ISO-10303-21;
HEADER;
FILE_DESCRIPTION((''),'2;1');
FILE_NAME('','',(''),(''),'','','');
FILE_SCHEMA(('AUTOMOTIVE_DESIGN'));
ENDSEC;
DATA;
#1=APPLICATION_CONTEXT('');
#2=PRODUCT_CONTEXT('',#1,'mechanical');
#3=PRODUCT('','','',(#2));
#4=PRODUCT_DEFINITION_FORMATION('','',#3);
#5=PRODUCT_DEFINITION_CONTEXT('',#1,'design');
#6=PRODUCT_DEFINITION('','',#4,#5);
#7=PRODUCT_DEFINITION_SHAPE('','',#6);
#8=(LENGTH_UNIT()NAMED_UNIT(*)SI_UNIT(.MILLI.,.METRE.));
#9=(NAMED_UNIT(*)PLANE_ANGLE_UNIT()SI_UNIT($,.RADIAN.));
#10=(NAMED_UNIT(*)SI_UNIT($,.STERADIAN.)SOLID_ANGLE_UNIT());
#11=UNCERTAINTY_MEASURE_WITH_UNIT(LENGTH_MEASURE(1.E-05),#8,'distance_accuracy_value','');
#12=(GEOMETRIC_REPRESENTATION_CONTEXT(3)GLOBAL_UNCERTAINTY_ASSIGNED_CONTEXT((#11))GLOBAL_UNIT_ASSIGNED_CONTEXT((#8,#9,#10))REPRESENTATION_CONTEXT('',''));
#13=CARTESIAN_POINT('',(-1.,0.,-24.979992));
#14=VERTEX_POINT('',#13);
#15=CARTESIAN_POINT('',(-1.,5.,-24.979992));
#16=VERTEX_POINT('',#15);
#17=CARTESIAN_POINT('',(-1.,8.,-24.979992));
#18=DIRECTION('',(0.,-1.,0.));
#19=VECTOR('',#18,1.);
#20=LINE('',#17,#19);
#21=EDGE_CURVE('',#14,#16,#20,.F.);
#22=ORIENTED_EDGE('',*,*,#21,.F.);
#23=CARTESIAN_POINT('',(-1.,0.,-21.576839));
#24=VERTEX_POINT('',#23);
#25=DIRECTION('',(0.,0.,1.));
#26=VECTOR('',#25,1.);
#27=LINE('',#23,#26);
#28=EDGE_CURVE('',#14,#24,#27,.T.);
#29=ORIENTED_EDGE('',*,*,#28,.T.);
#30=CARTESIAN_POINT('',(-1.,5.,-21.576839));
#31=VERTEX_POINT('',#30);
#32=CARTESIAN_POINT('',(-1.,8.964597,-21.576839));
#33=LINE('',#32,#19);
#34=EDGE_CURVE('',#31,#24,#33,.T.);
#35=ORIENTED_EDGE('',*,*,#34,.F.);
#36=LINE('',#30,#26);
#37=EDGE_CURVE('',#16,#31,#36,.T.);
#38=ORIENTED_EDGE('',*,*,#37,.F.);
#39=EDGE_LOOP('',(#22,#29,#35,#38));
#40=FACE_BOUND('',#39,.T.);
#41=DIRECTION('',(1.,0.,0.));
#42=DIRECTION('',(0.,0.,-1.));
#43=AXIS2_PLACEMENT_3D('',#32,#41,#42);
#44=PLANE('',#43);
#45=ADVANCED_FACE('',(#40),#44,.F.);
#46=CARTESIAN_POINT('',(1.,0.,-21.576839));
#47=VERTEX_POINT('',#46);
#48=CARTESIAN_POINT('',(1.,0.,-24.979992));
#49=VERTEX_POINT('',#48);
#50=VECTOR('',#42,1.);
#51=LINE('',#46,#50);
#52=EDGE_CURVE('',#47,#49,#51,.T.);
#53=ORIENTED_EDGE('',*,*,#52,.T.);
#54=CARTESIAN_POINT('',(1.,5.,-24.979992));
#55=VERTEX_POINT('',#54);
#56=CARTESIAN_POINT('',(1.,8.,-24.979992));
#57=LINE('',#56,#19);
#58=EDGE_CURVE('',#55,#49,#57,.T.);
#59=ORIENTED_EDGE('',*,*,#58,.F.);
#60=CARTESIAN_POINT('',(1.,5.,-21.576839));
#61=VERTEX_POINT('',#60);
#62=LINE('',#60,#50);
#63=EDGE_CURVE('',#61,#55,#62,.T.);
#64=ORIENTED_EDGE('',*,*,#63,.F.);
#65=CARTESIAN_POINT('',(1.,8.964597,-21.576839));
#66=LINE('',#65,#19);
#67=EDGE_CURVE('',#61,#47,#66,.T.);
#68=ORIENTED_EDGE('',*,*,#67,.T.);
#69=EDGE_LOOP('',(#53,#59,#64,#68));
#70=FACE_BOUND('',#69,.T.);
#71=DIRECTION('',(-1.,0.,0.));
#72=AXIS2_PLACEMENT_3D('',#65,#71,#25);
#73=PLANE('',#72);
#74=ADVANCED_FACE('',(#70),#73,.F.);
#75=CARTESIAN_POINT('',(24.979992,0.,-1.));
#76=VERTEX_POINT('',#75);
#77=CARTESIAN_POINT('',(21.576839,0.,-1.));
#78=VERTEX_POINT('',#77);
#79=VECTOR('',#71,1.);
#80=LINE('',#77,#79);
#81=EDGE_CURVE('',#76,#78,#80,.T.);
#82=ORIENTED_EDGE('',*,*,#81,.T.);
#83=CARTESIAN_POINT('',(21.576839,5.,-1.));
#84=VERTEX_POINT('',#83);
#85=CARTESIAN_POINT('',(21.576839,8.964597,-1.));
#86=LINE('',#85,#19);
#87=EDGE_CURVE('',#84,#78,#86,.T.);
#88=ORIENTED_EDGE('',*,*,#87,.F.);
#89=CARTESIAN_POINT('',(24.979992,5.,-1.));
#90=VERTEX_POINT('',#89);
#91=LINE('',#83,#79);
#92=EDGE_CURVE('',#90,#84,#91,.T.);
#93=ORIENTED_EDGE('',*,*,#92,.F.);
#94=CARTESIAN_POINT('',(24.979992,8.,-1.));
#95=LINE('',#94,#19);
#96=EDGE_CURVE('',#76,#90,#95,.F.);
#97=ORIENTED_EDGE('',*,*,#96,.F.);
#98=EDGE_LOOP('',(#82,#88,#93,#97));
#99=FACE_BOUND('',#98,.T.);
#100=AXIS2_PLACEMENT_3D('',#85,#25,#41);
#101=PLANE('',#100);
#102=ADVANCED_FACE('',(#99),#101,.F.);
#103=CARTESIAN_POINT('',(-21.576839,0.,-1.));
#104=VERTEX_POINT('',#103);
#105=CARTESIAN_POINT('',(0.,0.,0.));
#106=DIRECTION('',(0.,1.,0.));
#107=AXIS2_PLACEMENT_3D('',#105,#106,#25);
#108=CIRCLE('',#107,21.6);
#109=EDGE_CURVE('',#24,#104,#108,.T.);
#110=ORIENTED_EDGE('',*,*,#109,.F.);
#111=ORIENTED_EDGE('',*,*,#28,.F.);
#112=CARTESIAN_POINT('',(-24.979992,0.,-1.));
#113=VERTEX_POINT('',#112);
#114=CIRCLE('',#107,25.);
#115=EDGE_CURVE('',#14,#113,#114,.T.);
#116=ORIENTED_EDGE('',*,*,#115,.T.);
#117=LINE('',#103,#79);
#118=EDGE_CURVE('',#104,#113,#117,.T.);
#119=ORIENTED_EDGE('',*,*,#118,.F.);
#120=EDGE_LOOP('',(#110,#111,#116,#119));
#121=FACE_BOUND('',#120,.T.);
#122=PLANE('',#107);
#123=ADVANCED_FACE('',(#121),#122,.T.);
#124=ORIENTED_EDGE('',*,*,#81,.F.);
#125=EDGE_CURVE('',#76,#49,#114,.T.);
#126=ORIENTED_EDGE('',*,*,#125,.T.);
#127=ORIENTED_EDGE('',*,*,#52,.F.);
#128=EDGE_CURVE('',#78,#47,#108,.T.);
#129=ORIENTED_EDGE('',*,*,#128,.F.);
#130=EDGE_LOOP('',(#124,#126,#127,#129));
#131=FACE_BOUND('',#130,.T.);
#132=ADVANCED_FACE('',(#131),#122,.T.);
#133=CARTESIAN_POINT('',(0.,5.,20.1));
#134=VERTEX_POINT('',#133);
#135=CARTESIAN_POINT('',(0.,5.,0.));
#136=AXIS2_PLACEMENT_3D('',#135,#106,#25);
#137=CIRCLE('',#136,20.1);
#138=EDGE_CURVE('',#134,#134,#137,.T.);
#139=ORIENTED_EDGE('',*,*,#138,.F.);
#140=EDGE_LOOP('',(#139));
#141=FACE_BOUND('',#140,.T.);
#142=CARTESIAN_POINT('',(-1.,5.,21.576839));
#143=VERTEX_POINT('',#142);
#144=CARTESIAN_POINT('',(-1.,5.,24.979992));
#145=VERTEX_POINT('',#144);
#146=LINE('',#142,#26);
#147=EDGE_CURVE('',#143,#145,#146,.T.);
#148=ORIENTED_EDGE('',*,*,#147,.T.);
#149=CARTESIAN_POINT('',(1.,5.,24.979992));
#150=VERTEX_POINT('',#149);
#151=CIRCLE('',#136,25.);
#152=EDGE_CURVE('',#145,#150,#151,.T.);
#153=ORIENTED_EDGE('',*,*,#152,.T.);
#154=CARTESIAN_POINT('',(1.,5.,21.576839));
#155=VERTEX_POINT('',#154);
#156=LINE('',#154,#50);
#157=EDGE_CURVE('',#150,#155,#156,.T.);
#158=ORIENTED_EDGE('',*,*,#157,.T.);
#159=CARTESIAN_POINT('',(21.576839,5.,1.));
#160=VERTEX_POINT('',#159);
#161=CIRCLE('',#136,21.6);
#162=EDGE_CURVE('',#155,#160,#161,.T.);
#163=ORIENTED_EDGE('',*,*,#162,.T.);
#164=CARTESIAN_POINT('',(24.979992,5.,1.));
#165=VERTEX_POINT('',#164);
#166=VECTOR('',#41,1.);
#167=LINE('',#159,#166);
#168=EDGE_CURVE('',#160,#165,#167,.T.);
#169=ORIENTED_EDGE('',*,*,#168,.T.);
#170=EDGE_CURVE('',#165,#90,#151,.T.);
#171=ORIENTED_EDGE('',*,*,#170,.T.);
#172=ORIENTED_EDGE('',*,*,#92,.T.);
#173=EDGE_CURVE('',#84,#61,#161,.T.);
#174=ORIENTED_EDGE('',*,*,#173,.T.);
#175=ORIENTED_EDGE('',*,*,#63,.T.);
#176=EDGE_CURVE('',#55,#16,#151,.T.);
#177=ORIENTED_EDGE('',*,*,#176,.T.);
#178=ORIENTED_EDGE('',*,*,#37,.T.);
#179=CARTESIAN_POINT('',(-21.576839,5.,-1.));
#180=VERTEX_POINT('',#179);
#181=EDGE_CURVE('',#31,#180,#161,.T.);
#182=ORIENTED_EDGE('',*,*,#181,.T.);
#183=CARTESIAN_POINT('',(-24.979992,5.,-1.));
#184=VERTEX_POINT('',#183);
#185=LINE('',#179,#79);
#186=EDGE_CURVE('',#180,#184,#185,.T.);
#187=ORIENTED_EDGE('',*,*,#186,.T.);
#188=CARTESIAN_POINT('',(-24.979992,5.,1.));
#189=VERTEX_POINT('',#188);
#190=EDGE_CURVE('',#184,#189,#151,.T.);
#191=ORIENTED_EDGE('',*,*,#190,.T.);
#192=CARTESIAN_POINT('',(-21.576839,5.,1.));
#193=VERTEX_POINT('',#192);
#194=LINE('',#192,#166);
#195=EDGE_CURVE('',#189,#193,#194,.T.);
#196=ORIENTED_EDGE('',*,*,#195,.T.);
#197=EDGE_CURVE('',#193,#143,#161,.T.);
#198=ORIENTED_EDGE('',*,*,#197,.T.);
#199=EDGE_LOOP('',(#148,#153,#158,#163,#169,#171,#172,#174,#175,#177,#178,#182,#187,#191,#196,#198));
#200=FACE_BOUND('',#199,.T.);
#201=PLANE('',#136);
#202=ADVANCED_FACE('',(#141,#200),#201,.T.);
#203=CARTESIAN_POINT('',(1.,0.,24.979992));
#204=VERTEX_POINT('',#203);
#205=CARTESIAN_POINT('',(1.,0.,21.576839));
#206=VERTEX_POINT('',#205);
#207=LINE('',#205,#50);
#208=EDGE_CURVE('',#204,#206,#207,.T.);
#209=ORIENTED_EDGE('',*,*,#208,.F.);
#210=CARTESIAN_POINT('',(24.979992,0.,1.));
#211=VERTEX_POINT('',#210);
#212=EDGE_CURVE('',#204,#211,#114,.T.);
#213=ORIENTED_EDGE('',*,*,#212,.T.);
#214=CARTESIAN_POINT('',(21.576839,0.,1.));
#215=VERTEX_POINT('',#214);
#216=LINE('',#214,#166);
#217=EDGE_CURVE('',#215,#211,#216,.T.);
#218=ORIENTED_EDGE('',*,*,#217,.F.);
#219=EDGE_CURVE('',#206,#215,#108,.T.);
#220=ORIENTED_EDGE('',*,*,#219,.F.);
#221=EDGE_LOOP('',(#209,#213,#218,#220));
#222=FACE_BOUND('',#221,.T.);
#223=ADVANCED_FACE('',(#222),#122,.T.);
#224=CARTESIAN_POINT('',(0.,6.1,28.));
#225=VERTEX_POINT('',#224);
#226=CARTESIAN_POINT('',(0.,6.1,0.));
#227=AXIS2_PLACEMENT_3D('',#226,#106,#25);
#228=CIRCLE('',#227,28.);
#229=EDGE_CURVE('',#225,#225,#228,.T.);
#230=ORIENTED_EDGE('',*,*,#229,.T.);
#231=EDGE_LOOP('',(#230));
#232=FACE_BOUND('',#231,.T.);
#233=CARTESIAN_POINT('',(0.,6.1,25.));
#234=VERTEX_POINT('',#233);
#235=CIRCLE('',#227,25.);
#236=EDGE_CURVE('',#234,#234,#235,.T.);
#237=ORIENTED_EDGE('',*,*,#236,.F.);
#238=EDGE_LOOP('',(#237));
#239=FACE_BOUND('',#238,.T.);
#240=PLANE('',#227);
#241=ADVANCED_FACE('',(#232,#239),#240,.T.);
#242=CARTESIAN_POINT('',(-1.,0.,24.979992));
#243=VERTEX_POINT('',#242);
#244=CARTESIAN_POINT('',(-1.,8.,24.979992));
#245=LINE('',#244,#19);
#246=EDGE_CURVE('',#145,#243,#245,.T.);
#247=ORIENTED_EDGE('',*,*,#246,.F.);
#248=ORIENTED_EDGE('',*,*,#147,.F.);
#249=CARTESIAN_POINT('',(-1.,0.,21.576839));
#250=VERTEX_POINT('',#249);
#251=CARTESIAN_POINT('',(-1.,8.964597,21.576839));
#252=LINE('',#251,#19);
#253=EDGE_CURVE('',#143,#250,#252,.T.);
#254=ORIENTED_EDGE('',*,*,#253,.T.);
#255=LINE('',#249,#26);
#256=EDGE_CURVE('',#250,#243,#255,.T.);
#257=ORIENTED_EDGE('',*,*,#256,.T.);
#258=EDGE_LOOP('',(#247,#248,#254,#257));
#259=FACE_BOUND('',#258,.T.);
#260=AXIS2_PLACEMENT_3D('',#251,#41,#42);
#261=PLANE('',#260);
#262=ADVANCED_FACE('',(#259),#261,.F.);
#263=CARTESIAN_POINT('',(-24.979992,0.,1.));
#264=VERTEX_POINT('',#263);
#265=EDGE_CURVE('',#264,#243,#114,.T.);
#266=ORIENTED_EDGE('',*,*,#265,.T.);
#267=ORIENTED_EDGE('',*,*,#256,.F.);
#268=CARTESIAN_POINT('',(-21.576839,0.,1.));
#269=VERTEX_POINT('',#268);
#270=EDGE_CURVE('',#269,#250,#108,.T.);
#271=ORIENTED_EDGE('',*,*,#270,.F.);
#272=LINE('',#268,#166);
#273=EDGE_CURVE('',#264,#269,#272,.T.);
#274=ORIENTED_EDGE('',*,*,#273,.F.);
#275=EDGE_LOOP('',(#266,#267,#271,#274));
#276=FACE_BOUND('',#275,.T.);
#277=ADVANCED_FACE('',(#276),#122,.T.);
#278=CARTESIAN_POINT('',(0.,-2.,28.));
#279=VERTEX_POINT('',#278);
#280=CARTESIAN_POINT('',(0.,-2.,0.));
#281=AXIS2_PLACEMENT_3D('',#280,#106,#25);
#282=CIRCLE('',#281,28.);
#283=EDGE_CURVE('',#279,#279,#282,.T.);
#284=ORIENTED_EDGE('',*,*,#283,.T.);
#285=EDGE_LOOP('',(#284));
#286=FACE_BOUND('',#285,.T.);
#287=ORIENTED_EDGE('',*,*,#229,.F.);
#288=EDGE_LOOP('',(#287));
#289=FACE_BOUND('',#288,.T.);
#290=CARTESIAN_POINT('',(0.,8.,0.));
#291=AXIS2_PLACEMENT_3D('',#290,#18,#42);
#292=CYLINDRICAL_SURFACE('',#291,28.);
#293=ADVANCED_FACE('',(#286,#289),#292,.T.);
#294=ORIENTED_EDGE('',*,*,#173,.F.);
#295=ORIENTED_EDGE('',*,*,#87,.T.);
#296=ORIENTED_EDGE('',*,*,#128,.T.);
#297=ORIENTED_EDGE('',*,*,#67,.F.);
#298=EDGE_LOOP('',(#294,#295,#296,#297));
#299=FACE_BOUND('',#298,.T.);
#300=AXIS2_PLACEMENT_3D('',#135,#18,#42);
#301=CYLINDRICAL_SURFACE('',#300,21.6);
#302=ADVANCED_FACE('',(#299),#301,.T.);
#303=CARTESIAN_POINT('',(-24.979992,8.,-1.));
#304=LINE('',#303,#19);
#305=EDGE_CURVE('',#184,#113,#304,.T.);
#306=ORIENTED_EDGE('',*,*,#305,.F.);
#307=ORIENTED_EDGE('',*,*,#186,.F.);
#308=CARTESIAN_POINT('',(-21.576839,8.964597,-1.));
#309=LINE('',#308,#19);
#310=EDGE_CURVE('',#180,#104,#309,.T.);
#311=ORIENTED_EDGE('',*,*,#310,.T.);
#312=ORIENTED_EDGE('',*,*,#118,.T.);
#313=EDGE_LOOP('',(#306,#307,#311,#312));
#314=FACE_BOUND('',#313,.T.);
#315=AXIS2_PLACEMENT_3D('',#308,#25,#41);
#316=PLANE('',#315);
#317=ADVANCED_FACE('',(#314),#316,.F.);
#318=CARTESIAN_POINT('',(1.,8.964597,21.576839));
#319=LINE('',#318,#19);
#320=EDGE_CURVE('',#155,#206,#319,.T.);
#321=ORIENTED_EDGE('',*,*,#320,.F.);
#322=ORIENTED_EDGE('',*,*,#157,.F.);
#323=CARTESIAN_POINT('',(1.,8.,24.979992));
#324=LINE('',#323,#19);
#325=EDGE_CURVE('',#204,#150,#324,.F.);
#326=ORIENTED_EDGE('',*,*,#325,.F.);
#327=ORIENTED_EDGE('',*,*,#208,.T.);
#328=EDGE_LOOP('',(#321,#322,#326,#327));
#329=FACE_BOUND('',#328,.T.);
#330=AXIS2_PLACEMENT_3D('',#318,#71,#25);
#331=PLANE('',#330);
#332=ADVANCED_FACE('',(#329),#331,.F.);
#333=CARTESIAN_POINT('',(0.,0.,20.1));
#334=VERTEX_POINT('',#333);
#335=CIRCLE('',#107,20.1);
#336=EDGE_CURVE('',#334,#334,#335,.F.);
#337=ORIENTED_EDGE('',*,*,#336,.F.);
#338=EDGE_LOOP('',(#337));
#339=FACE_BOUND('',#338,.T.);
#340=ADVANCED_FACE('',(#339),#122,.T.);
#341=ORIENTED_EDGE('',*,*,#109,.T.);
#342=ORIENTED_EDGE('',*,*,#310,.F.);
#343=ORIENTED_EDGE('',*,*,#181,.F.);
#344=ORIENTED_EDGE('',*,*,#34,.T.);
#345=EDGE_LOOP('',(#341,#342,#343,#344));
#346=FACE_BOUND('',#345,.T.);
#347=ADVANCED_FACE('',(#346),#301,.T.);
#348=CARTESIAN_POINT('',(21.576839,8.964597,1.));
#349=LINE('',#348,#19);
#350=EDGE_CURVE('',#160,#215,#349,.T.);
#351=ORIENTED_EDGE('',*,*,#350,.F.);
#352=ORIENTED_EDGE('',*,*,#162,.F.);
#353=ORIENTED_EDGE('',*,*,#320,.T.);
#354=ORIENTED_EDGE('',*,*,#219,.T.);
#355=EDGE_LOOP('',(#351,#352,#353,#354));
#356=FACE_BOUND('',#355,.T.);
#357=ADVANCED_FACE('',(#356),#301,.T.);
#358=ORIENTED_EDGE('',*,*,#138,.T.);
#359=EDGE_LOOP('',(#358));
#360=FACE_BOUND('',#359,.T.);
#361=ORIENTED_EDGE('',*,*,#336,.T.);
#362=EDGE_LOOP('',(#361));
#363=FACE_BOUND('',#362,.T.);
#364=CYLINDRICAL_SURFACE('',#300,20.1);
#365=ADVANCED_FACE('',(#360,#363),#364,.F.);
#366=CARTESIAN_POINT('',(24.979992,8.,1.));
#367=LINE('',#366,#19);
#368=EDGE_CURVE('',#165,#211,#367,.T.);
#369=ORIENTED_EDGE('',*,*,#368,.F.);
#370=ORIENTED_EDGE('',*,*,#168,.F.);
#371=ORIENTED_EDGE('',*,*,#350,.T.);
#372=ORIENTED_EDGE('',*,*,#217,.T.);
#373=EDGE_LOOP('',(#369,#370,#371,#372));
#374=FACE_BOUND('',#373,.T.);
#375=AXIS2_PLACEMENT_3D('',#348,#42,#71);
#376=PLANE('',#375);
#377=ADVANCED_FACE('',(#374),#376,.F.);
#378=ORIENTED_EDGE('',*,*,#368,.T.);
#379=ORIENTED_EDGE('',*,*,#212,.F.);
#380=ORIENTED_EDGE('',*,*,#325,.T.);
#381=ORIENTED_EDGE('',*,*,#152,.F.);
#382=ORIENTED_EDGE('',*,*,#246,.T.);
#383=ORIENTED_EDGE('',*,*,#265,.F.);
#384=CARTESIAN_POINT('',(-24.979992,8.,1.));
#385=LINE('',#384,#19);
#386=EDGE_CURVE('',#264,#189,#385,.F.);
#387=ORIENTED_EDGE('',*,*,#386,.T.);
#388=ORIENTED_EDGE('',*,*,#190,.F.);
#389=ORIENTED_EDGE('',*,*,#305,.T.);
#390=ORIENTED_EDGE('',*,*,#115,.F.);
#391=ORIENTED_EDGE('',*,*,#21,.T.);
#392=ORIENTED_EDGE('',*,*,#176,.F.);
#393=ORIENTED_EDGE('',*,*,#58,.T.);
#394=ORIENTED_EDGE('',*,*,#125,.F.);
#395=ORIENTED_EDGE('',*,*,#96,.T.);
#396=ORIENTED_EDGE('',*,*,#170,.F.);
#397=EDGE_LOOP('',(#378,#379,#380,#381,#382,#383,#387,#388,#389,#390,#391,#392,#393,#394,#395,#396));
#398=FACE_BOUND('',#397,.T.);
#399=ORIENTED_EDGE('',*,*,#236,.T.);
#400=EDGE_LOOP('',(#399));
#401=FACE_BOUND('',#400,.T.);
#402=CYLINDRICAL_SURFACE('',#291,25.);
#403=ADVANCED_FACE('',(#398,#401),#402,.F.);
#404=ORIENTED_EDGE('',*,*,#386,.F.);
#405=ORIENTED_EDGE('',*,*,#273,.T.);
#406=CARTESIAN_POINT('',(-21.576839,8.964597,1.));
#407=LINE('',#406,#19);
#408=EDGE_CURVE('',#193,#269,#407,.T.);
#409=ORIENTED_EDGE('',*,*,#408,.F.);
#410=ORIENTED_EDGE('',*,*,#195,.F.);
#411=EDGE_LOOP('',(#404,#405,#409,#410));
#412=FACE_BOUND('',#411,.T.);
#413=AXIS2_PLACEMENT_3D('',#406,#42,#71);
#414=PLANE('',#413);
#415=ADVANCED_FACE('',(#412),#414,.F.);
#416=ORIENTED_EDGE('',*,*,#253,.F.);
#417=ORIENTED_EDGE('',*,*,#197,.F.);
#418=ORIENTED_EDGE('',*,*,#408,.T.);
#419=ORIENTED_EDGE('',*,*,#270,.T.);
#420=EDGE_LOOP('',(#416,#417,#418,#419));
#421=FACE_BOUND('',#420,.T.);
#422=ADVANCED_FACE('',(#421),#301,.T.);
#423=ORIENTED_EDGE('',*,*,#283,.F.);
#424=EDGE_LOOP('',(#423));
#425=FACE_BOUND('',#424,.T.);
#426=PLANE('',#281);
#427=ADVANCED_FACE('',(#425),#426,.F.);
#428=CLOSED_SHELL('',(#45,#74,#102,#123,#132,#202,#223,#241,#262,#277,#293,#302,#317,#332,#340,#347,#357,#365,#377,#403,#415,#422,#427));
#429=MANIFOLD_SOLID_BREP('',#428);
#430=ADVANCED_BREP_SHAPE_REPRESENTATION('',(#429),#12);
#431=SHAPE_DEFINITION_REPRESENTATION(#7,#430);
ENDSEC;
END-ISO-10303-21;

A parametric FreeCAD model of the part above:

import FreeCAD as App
import Part
import Sketcher
Q = App.Units.Quantity

doc = App.newDocument("Part")
body = doc.addObject("PartDesign::Body", "Body")

# Sketch on XZ plane
sketch1 = doc.addObject("Sketcher::SketchObject", "Sketch")
body.addObject(sketch1)
sketch1.AttachmentSupport = (doc.XZ_Plane, [""])
sketch1.MapMode = "FlatFace"
sketch1.addGeometry([
    Part.Circle(App.Vector(0, 0, 0), App.Vector(0, 0, 1), 28),
    Part.Circle(App.Vector(0, 0, 0), App.Vector(0, 0, 1), 25),
], False)
sketch1.addConstraint([
    Sketcher.Constraint("Coincident", 0, 3, -1, 1),
    Sketcher.Constraint("Coincident", 1, 3, -1, 1),
    Sketcher.Constraint("Diameter", 0, Q("56 mm")),
    Sketcher.Constraint("Diameter", 1, Q("50 mm")),
])
pad1 = doc.addObject("PartDesign::Pad", "Pad")
body.addObject(pad1)
pad1.Profile = sketch1
pad1.Length = 8
pad1.Reversed = True

# Sketch on XZ plane
sketch2 = doc.addObject("Sketcher::SketchObject", "Sketch001")
body.addObject(sketch2)
sketch2.AttachmentSupport = (doc.XZ_Plane, [""])
sketch2.MapMode = "FlatFace"
sketch2.AttachmentOffset = App.Placement(App.Vector(0, 0, 2), App.Rotation())
sketch2.addGeometry(Part.Circle(App.Vector(0, 0, 0), App.Vector(0, 0, 1), 28), False)
sketch2.addConstraint([
    Sketcher.Constraint("Coincident", 0, 3, -1, 1),
    Sketcher.Constraint("Diameter", 0, Q("56 mm")),
])
pad2 = doc.addObject("PartDesign::Pad", "Pad001")
body.addObject(pad2)
pad2.Profile = sketch2
pad2.Length = 2
pad2.Reversed = True

# Sketch on XZ plane
sketch3 = doc.addObject("Sketcher::SketchObject", "Sketch002")
body.addObject(sketch3)
sketch3.AttachmentSupport = (doc.XZ_Plane, [""])
sketch3.MapMode = "FlatFace"
sketch3.addGeometry([
    Part.Circle(App.Vector(0, 0, 0), App.Vector(0, 0, 1), 21.6),
    Part.Circle(App.Vector(0, 0, 0), App.Vector(0, 0, 1), 20.1),
], False)
sketch3.addConstraint([
    Sketcher.Constraint("Coincident", 0, 3, -1, 1),
    Sketcher.Constraint("Coincident", 1, 3, -1, 1),
    Sketcher.Constraint("Diameter", 0, Q("43.2 mm")),
    Sketcher.Constraint("Diameter", 1, Q("40.2 mm")),
])
pad3 = doc.addObject("PartDesign::Pad", "Pad002")
body.addObject(pad3)
pad3.Profile = sketch3
pad3.Length = 5
pad3.Reversed = True

# Sketch on XZ plane
sketch4 = doc.addObject("Sketcher::SketchObject", "Sketch003")
body.addObject(sketch4)
sketch4.AttachmentSupport = (doc.XZ_Plane, [""])
sketch4.MapMode = "FlatFace"
sketch4.AttachmentOffset = App.Placement(App.Vector(0, 0, -6.1), App.Rotation())
sketch4.addGeometry(Part.Circle(App.Vector(0, 0, 0), App.Vector(0, 0, 1), 28), False)
sketch4.addConstraint([
    Sketcher.Constraint("Coincident", 0, 3, -1, 1),
    Sketcher.Constraint("Diameter", 0, Q("56 mm")),
])
pocket1 = doc.addObject("PartDesign::Pocket", "Pocket")
body.addObject(pocket1)
pocket1.Profile = sketch4
pocket1.Length = 1.9

# Sketch on XZ plane
sketch5 = doc.addObject("Sketcher::SketchObject", "Sketch004")
body.addObject(sketch5)
sketch5.AttachmentSupport = (doc.XZ_Plane, [""])
sketch5.MapMode = "FlatFace"
sketch5.addGeometry([
    Part.LineSegment(App.Vector(-1, 21.576839, 0), App.Vector(-1, 25, 0)),  # 0
    Part.LineSegment(App.Vector(-1, 25, 0), App.Vector(1, 25, 0)),  # 1
    Part.LineSegment(App.Vector(1, 25, 0), App.Vector(1, 21.576839, 0)),  # 2
    Part.LineSegment(App.Vector(1, 21.576839, 0), App.Vector(-1, 21.576839, 0)),  # 3
    Part.LineSegment(App.Vector(-25, -1, 0), App.Vector(-25, 1, 0)),  # 4
    Part.LineSegment(App.Vector(-25, 1, 0), App.Vector(-21.576839, 1, 0)),  # 5
    Part.LineSegment(App.Vector(-21.576839, 1, 0), App.Vector(-21.576839, -1, 0)),  # 6
    Part.LineSegment(App.Vector(-21.576839, -1, 0), App.Vector(-25, -1, 0)),  # 7
    Part.LineSegment(App.Vector(21.576839, -1, 0), App.Vector(21.576839, 1, 0)),  # 8
    Part.LineSegment(App.Vector(21.576839, 1, 0), App.Vector(25, 1, 0)),  # 9
    Part.LineSegment(App.Vector(25, 1, 0), App.Vector(25, -1, 0)),  # 10
    Part.LineSegment(App.Vector(25, -1, 0), App.Vector(21.576839, -1, 0)),  # 11
    Part.LineSegment(App.Vector(-1, -25, 0), App.Vector(-1, -21.576839, 0)),  # 12
    Part.LineSegment(App.Vector(-1, -21.576839, 0), App.Vector(1, -21.576839, 0)),  # 13
    Part.LineSegment(App.Vector(1, -21.576839, 0), App.Vector(1, -25, 0)),  # 14
    Part.LineSegment(App.Vector(1, -25, 0), App.Vector(-1, -25, 0)),  # 15
], False)
sketch5.addConstraint([
    Sketcher.Constraint("Coincident", 0, 2, 1, 1),
    Sketcher.Constraint("Coincident", 1, 2, 2, 1),
    Sketcher.Constraint("Coincident", 2, 2, 3, 1),
    Sketcher.Constraint("Coincident", 3, 2, 0, 1),
    Sketcher.Constraint("Coincident", 4, 2, 5, 1),
    Sketcher.Constraint("Coincident", 5, 2, 6, 1),
    Sketcher.Constraint("Coincident", 6, 2, 7, 1),
    Sketcher.Constraint("Coincident", 7, 2, 4, 1),
    Sketcher.Constraint("Coincident", 8, 2, 9, 1),
    Sketcher.Constraint("Coincident", 9, 2, 10, 1),
    Sketcher.Constraint("Coincident", 10, 2, 11, 1),
    Sketcher.Constraint("Coincident", 11, 2, 8, 1),
    Sketcher.Constraint("Coincident", 12, 2, 13, 1),
    Sketcher.Constraint("Coincident", 13, 2, 14, 1),
    Sketcher.Constraint("Coincident", 14, 2, 15, 1),
    Sketcher.Constraint("Coincident", 15, 2, 12, 1),
    Sketcher.Constraint("Vertical", 0),
    Sketcher.Constraint("Horizontal", 1),
    Sketcher.Constraint("Vertical", 2),
    Sketcher.Constraint("Horizontal", 3),
    Sketcher.Constraint("Vertical", 4),
    Sketcher.Constraint("Horizontal", 5),
    Sketcher.Constraint("Vertical", 6),
    Sketcher.Constraint("Horizontal", 7),
    Sketcher.Constraint("Vertical", 8),
    Sketcher.Constraint("Horizontal", 9),
    Sketcher.Constraint("Vertical", 10),
    Sketcher.Constraint("Horizontal", 11),
    Sketcher.Constraint("Vertical", 12),
    Sketcher.Constraint("Horizontal", 13),
    Sketcher.Constraint("Vertical", 14),
    Sketcher.Constraint("Horizontal", 15),
    Sketcher.Constraint("Symmetric", 6, 2, 8, 2, -1, 1),
    Sketcher.Constraint("Symmetric", 4, 2, 10, 2, -1, 1),
    Sketcher.Constraint("Symmetric", 2, 2, 12, 2, -1, 1),
    Sketcher.Constraint("Symmetric", 0, 2, 14, 2, -1, 1),
    Sketcher.Constraint("Horizontal", 5, 2, 8, 2),
    Sketcher.Constraint("Vertical", 3, 2, 12, 2),
    Sketcher.Constraint("Equal", 11, 0),
    Sketcher.Constraint("Equal", 15, 4),
    Sketcher.Constraint("DistanceX", 1, 1, 1, 2, Q("2 mm")),
    Sketcher.Constraint("DistanceY", -1, 1, 0, 2, Q("25 mm")),
    Sketcher.Constraint("DistanceX", 4, 2, -1, 1, Q("25 mm")),
    Sketcher.Constraint("DistanceX", 5, 1, 5, 2, Q("3.423161 mm")),
])
pad4 = doc.addObject("PartDesign::Pad", "Pad003")
body.addObject(pad4)
pad4.Profile = sketch5
pad4.Length = 5
pad4.Reversed = True

doc.recompute()
